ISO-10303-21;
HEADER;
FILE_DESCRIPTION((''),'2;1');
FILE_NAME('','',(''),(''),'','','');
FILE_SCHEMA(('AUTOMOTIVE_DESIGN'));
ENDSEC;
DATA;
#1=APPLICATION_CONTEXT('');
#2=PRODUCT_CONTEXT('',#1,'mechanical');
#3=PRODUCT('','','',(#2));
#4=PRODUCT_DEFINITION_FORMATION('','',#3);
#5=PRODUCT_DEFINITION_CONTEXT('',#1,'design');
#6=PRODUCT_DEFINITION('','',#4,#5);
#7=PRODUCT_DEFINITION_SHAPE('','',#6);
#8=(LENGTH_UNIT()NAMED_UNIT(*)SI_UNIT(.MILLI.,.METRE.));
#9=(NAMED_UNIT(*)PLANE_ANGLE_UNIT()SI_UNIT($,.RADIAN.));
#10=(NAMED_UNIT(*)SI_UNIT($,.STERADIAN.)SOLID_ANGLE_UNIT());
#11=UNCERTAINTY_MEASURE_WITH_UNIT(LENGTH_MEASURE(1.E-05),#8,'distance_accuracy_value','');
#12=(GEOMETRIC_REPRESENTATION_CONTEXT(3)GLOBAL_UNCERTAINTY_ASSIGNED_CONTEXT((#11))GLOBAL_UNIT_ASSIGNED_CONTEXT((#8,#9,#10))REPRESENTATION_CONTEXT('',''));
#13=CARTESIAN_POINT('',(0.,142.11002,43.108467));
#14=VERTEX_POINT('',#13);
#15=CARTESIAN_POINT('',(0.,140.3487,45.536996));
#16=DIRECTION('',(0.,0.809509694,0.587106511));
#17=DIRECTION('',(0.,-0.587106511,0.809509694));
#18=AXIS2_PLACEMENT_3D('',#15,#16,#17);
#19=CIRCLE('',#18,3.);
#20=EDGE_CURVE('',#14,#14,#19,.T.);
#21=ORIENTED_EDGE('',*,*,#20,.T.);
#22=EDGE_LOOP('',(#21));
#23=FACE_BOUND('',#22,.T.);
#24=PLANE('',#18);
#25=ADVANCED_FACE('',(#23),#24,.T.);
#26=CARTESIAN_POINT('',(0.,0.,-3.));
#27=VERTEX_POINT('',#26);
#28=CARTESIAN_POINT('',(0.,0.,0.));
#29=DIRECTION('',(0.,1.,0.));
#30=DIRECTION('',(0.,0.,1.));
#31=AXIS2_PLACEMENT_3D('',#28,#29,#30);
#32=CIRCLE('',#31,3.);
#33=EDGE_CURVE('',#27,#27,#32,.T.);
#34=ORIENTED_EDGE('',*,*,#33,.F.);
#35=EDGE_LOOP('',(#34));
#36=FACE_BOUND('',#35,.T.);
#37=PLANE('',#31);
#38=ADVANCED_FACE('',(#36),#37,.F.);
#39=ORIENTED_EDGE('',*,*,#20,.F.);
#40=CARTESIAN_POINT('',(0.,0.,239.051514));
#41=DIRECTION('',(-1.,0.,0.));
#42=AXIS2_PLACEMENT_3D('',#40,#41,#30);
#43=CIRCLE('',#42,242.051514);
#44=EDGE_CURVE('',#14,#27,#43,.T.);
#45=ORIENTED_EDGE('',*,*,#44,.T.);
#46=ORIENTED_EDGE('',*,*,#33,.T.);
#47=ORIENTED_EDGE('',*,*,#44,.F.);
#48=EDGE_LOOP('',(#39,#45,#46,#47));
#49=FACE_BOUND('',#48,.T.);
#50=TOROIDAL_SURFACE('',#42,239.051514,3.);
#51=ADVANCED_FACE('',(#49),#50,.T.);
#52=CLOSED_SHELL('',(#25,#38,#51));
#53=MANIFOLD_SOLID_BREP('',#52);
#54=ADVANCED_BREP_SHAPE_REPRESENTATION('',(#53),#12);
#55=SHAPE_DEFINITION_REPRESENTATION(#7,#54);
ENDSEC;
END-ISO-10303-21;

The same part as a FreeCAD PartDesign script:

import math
import FreeCAD as App
import Part
import Sketcher
from FreeCAD import Vector

doc = App.newDocument("Part")
body = doc.addObject("PartDesign::Body", "Body")

# Sketch on XZ plane
sketch1 = body.newObject("Sketcher::SketchObject", "Sketch")
sketch1.AttachmentSupport = (doc.getObject("XZ_Plane"), [""])
sketch1.MapMode = "FlatFace"
sketch1.addGeometry(Part.Circle(Vector(0, 0, 0), Vector(0, 0, 1), 3), False)
sketch1.addConstraint(Sketcher.Constraint("Coincident", 0, 3, -1, 1))
sketch1.addConstraint(Sketcher.Constraint("Diameter", 0, 6.0))

# Sketch on YZ plane
sketch2 = body.newObject("Sketcher::SketchObject", "Sketch001")
sketch2.AttachmentSupport = (doc.getObject("YZ_Plane"), [""])
sketch2.MapMode = "FlatFace"
sketch2.addGeometry(Part.ArcOfCircle(Part.Circle(Vector(0, 239, 0), Vector(0, 0, 1), 239), math.radians(-90), math.radians(-54)), False)
sketch2.addConstraint(Sketcher.Constraint("Coincident", 0, 1, -1, 1))
sketch2.addConstraint(Sketcher.Constraint("PointOnObject", 0, 3, -2))
sketch2.addConstraint(Sketcher.Constraint("Radius", 0, 239.051514))
sketch2.addConstraint(Sketcher.Constraint("DistanceX", -1, 1, 0, 2, 140.3487))
doc.recompute()

additivepipe = body.newObject("PartDesign::AdditivePipe", "AdditivePipe")
additivepipe.Profile = sketch1
additivepipe.Spine = (sketch2, ["Edge1"])

doc.recompute()
